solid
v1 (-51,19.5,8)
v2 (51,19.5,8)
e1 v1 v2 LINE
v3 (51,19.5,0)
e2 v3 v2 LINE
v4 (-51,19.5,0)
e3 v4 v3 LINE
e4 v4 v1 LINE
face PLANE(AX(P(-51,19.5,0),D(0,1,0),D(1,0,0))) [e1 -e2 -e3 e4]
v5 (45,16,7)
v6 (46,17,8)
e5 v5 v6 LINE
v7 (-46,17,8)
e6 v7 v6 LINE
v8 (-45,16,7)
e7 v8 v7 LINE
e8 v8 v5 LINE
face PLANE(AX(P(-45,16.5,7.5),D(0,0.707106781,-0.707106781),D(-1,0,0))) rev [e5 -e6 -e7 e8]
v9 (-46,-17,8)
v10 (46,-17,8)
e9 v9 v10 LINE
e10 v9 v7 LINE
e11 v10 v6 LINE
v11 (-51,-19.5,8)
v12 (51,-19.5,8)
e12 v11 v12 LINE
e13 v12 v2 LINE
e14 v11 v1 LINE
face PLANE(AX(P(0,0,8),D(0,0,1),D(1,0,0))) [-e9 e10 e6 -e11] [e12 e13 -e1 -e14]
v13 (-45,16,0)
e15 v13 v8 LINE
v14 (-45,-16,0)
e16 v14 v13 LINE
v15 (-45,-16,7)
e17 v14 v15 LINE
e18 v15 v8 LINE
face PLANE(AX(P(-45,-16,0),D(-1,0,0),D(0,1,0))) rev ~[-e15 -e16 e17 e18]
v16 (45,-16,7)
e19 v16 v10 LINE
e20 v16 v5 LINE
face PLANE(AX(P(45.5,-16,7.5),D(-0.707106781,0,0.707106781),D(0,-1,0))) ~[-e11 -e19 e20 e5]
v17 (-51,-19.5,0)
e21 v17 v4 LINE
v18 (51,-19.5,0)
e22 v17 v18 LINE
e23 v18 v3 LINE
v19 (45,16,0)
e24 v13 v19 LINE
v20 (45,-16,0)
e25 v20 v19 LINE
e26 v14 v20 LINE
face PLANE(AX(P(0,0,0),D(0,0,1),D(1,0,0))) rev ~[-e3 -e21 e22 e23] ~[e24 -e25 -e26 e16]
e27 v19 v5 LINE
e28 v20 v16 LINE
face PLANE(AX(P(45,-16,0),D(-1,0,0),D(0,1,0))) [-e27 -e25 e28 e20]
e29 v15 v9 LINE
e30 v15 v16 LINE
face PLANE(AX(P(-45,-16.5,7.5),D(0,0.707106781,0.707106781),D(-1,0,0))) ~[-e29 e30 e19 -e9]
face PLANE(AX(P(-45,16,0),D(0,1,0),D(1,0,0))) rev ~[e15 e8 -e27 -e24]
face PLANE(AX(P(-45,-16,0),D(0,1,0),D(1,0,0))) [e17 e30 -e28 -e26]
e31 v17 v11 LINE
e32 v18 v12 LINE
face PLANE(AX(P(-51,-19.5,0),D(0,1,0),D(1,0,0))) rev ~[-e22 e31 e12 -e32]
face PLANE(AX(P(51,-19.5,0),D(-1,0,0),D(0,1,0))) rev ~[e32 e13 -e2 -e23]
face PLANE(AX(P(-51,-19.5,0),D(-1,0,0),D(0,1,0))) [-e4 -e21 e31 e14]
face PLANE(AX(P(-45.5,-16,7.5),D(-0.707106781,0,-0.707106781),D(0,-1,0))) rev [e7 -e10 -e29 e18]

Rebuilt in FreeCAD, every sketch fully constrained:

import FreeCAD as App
import Part
import Sketcher


def edges_at(feature, points):
    """Names of the edges that pass closest to the given points."""
    edges = feature.Shape.Edges
    near = lambda p: min(range(len(edges)), key=lambda i: edges[i].distToShape(Part.Vertex(*p))[0])
    return sorted({f"Edge{near(p) + 1}" for p in points})


def add_polygon(sketch, points):
    """Adds a closed chain of lines whose ends are joined by coincident constraints."""
    first, n = sketch.GeometryCount, len(points)
    for a, b in zip(points, points[1:] + points[:1]):
        sketch.addGeometry(Part.LineSegment(App.Vector(*a, 0), App.Vector(*b, 0)), False)
    for i in range(n):
        sketch.addConstraint(Sketcher.Constraint("Coincident", first + i, 2, first + (i + 1) % n, 1))

doc = App.newDocument("Part")
body = doc.addObject("PartDesign::Body", "Body")

sketch1 = body.newObject("Sketcher::SketchObject", "Sketch")
sketch1.AttachmentSupport = (doc.getObject("XY_Plane"), [""])
sketch1.MapMode = "FlatFace"
add_polygon(sketch1, [(-51, 19.5), (-51, -19.5), (51, -19.5), (51, 19.5)])
add_polygon(sketch1, [(45, -16), (-45, -16), (-45, 16), (45, 16)])
sketch1.addConstraint([
    Sketcher.Constraint("Vertical", 0),
    Sketcher.Constraint("Horizontal", 1),
    Sketcher.Constraint("Vertical", 2),
    Sketcher.Constraint("Horizontal", 3),
    Sketcher.Constraint("Horizontal", 4),
    Sketcher.Constraint("Vertical", 5),
    Sketcher.Constraint("Horizontal", 6),
    Sketcher.Constraint("Vertical", 7),
    Sketcher.Constraint("Symmetric", 0, 2, 2, 2, -1, 1),
    Sketcher.Constraint("Symmetric", 4, 2, 6, 2, -1, 1),
    Sketcher.Constraint("DistanceX", 1, 1, 1, 2, 102.0),
    Sketcher.Constraint("DistanceX", 4, 2, 4, 1, 90.0),
    Sketcher.Constraint("DistanceY", 0, 2, 0, 1, 39.0),
    Sketcher.Constraint("DistanceY", 5, 1, 5, 2, 32.0),
])
pad1 = body.newObject("PartDesign::Pad", "Pad")
pad1.Profile = sketch1
pad1.Length = 8
doc.recompute()

chamfer = body.newObject("PartDesign::Chamfer", "Chamfer")
chamfer.Base = (pad1, edges_at(pad1, [
    (0, 16, 8),
    (45, 0, 8),
    (0, -16, 8),
    (-45, 0, 8),
]))
chamfer.Size = 1

doc.recompute()
